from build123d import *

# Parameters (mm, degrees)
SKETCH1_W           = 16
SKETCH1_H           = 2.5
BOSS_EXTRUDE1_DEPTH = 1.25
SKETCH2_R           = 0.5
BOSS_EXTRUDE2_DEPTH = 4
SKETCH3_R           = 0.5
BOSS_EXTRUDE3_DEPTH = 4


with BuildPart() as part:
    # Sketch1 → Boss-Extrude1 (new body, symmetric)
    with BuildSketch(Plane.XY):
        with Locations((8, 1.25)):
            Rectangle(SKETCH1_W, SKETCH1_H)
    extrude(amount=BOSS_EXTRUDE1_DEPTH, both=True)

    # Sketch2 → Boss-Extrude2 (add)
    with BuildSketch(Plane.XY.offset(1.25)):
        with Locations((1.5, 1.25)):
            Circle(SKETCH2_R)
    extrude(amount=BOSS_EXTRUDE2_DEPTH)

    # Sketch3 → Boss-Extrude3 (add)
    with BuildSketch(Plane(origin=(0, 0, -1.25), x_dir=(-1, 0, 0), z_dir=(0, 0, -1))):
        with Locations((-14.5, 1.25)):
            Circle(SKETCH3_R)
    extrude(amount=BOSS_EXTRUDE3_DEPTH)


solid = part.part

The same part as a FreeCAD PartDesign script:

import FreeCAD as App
import Part
import Sketcher


def add_polygon(sketch, points):
    """Adds a closed chain of lines whose ends are joined by coincident constraints."""
    first, n = sketch.GeometryCount, len(points)
    for a, b in zip(points, points[1:] + points[:1]):
        sketch.addGeometry(Part.LineSegment(App.Vector(*a, 0), App.Vector(*b, 0)), False)
    for i in range(n):
        sketch.addConstraint(Sketcher.Constraint("Coincident", first + i, 2, first + (i + 1) % n, 1))

doc = App.newDocument("Part")
body = doc.addObject("PartDesign::Body", "Body")

sketch1 = doc.addObject("Sketcher::SketchObject", "Sketch")
body.addObject(sketch1)
sketch1.AttachmentSupport = (doc.XY_Plane, [""])
sketch1.MapMode = "FlatFace"
add_polygon(sketch1, [(0, 2.5), (0, 0), (16, 0), (16, 2.5)])
sketch1.addConstraint([
    Sketcher.Constraint("Vertical", 0),
    Sketcher.Constraint("Horizontal", 1),
    Sketcher.Constraint("Vertical", 2),
    Sketcher.Constraint("Horizontal", 3),
    Sketcher.Constraint("Coincident", 0, 2, -1, 1),
    Sketcher.Constraint("DistanceX", 1, 1, 1, 2, 16.0),
    Sketcher.Constraint("DistanceY", 0, 2, 0, 1, 2.5),
])
pad1 = doc.addObject("PartDesign::Pad", "Pad")
body.addObject(pad1)
pad1.Profile = sketch1
pad1.Length = 2.5
pad1.Midplane = True

sketch2 = doc.addObject("Sketcher::SketchObject", "Sketch001")
body.addObject(sketch2)
sketch2.AttachmentSupport = (doc.XY_Plane, [""])
sketch2.MapMode = "FlatFace"
sketch2.AttachmentOffset = App.Placement(App.Vector(0, 0, 1.25), App.Rotation())
sketch2.addGeometry(Part.Circle(App.Vector(1.5, 1.2, 0), App.Vector(0, 0, 1), 0.5), False)
sketch2.addConstraint([
    Sketcher.Constraint("Diameter", 0, 1.0),
    Sketcher.Constraint("DistanceX", -1, 1, 0, 3, 1.5),
    Sketcher.Constraint("DistanceY", -1, 1, 0, 3, 1.25),
])
pad2 = doc.addObject("PartDesign::Pad", "Pad001")
body.addObject(pad2)
pad2.Profile = sketch2
pad2.Length = 4

sketch3 = doc.addObject("Sketcher::SketchObject", "Sketch002")
body.addObject(sketch3)
sketch3.AttachmentSupport = (doc.XY_Plane, [""])
sketch3.MapMode = "FlatFace"
sketch3.AttachmentOffset = App.Placement(App.Vector(0, 0, -1.25), App.Rotation())
sketch3.addGeometry(Part.Circle(App.Vector(14.5, 1.2, 0), App.Vector(0, 0, 1), 0.5), False)
sketch3.addConstraint([
    Sketcher.Constraint("Diameter", 0, 1.0),
    Sketcher.Constraint("DistanceX", -1, 1, 0, 3, 14.5),
    Sketcher.Constraint("DistanceY", -1, 1, 0, 3, 1.25),
])
pad3 = doc.addObject("PartDesign::Pad", "Pad002")
body.addObject(pad3)
pad3.Profile = sketch3
pad3.Length = 4
pad3.Reversed = True

doc.recompute()
